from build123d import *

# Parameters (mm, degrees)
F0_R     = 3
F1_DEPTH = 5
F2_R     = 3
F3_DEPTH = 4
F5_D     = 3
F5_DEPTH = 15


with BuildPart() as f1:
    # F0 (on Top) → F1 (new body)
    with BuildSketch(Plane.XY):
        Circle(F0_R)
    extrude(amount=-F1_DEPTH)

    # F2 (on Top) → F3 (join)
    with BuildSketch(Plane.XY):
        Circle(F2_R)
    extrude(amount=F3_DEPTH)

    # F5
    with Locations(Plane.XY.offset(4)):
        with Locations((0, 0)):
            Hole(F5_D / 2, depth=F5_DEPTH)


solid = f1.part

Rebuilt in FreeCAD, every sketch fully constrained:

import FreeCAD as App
import Part
import Sketcher
from FreeCAD import Vector
Q = App.Units.Quantity

doc = App.newDocument("Part")
body = doc.addObject("PartDesign::Body", "Body")

# Sketch on XY plane
sketch1 = body.newObject("Sketcher::SketchObject", "Sketch")
sketch1.AttachmentSupport = (doc.getObject("XY_Plane"), [""])
sketch1.MapMode = "FlatFace"
sketch1.addGeometry(Part.Circle(Vector(0, 0, 0), Vector(0, 0, 1), 3), False)
sketch1.addConstraint([
    Sketcher.Constraint("Coincident", 0, 3, -1, 1),
    Sketcher.Constraint("Diameter", 0, Q("6 mm")),
])
pad1 = body.newObject("PartDesign::Pad", "Pad")
pad1.Profile = sketch1
pad1.Length = 5
pad1.Reversed = True

# Sketch on XY plane
sketch2 = body.newObject("Sketcher::SketchObject", "Sketch001")
sketch2.AttachmentSupport = (doc.getObject("XY_Plane"), [""])
sketch2.MapMode = "FlatFace"
sketch2.addGeometry(Part.Circle(Vector(0, 0, 0), Vector(0, 0, 1), 3), False)
sketch2.addConstraint([
    Sketcher.Constraint("Coincident", 0, 3, -1, 1),
    Sketcher.Constraint("Diameter", 0, Q("6 mm")),
])
pad2 = body.newObject("PartDesign::Pad", "Pad001")
pad2.Profile = sketch2
pad2.Length = 4

# Sketch on XY plane
sketch3 = body.newObject("Sketcher::SketchObject", "Sketch002")
sketch3.AttachmentSupport = (doc.getObject("XY_Plane"), [""])
sketch3.MapMode = "FlatFace"
sketch3.AttachmentOffset = App.Placement(Vector(0, 0, 4), App.Rotation())
sketch3.addGeometry(Part.Circle(Vector(0, 0, 0), Vector(0, 0, 1), 1.5), False)
sketch3.addConstraint([
    Sketcher.Constraint("Coincident", 0, 3, -1, 1),
    Sketcher.Constraint("Diameter", 0, Q("3 mm")),
])
doc.recompute()
hole = body.newObject("PartDesign::Hole", "Hole")
hole.Profile = sketch3
hole.ThreadType = "None"
hole.Diameter = 3
hole.DepthType = "Dimension"
hole.Depth = 15
hole.DrillPoint = "Flat"

doc.recompute()
